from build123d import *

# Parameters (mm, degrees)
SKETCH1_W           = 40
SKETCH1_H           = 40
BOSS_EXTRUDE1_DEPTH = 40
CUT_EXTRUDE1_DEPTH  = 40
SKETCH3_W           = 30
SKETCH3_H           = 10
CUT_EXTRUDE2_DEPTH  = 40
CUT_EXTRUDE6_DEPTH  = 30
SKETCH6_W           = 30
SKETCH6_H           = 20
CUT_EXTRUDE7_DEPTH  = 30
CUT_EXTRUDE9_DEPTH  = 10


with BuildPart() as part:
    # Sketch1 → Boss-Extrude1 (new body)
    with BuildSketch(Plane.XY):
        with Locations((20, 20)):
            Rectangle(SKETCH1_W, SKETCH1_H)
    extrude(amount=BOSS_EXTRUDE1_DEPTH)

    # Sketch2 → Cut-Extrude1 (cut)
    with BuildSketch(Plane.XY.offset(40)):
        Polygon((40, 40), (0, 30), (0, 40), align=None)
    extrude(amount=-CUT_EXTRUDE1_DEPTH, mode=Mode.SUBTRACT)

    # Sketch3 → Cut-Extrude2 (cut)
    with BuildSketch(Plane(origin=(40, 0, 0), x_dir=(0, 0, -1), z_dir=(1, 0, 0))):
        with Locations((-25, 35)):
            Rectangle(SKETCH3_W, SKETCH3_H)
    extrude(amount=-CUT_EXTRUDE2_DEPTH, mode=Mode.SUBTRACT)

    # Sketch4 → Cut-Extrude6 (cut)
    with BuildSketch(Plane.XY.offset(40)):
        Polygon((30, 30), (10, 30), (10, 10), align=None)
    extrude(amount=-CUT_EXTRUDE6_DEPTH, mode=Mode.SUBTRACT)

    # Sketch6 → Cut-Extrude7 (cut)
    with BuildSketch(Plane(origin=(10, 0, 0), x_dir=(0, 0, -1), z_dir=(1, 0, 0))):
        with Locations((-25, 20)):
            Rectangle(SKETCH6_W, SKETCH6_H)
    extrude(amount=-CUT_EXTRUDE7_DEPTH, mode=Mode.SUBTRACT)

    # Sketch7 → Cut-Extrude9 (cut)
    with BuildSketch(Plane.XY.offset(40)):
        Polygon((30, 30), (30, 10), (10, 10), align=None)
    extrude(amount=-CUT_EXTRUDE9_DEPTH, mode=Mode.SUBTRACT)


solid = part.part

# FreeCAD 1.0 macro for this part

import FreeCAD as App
import Part
import Sketcher
from FreeCAD import Vector


def add_polygon(sketch, points):
    """Adds a closed chain of lines whose ends are joined by coincident constraints."""
    first, n = sketch.GeometryCount, len(points)
    for a, b in zip(points, points[1:] + points[:1]):
        sketch.addGeometry(Part.LineSegment(App.Vector(*a, 0), App.Vector(*b, 0)), False)
    for i in range(n):
        sketch.addConstraint(Sketcher.Constraint("Coincident", first + i, 2, first + (i + 1) % n, 1))

doc = App.newDocument("Part")
body = doc.addObject("PartDesign::Body", "Body")

# Sketch on XY plane
sketch1 = body.newObject("Sketcher::SketchObject", "Sketch")
sketch1.AttachmentSupport = (doc.getObject("XY_Plane"), [""])
sketch1.MapMode = "FlatFace"
add_polygon(sketch1, [(0, 40), (0, 0), (40, 0), (40, 40)])  # lines 0-3
sketch1.addConstraint([
    Sketcher.Constraint("Vertical", 0),
    Sketcher.Constraint("Horizontal", 1),
    Sketcher.Constraint("Vertical", 2),
    Sketcher.Constraint("Horizontal", 3),
    Sketcher.Constraint("Coincident", 0, 2, -1, 1),
    Sketcher.Constraint("Equal", 3, 0),
    Sketcher.Constraint("DistanceX", 1, 1, 1, 2, 40.0),
])
pad1 = body.newObject("PartDesign::Pad", "Pad")
pad1.Profile = sketch1
pad1.Length = 40

# Sketch on XY plane
sketch2 = body.newObject("Sketcher::SketchObject", "Sketch001")
sketch2.AttachmentSupport = (doc.getObject("XY_Plane"), [""])
sketch2.MapMode = "FlatFace"
sketch2.AttachmentOffset = App.Placement(Vector(0, 0, 40), App.Rotation())
add_polygon(sketch2, [(0, 30), (40, 40), (0, 40)])  # lines 0-2
sketch2.addConstraint([
    Sketcher.Constraint("Horizontal", 1),
    Sketcher.Constraint("Vertical", 2),
    Sketcher.Constraint("PointOnObject", 1, 2, -2),
    Sketcher.Constraint("DistanceX", 1, 2, 1, 1, 40.0),
    Sketcher.Constraint("DistanceY", 2, 2, 2, 1, 10.0),
    Sketcher.Constraint("DistanceY", -1, 1, 0, 2, 40.0),
])
pocket1 = body.newObject("PartDesign::Pocket", "Pocket")
pocket1.Profile = sketch2
pocket1.Length = 40

# Sketch on YZ plane
sketch3 = body.newObject("Sketcher::SketchObject", "Sketch002")
sketch3.AttachmentSupport = (doc.getObject("YZ_Plane"), [""])
sketch3.MapMode = "FlatFace"
sketch3.AttachmentOffset = App.Placement(Vector(0, 0, 40), App.Rotation())
add_polygon(sketch3, [(40, 40), (30, 40), (30, 10), (40, 10)])  # lines 0-3
sketch3.addConstraint([
    Sketcher.Constraint("Horizontal", 0),
    Sketcher.Constraint("Vertical", 1),
    Sketcher.Constraint("Horizontal", 2),
    Sketcher.Constraint("Vertical", 3),
    Sketcher.Constraint("DistanceX", 0, 2, 0, 1, 10.0),
    Sketcher.Constraint("DistanceY", 1, 2, 1, 1, 30.0),
    Sketcher.Constraint("DistanceX", -1, 1, 0, 2, 30.0),
    Sketcher.Constraint("DistanceY", -1, 1, 0, 2, 40.0),
])
pocket2 = body.newObject("PartDesign::Pocket", "Pocket001")
pocket2.Profile = sketch3
pocket2.Length = 40

# Sketch on XY plane
sketch4 = body.newObject("Sketcher::SketchObject", "Sketch003")
sketch4.AttachmentSupport = (doc.getObject("XY_Plane"), [""])
sketch4.MapMode = "FlatFace"
sketch4.AttachmentOffset = App.Placement(Vector(0, 0, 40), App.Rotation())
add_polygon(sketch4, [(30, 30), (10, 30), (10, 10)])  # lines 0-2
sketch4.addConstraint([
    Sketcher.Constraint("Horizontal", 0),
    Sketcher.Constraint("Vertical", 1),
    Sketcher.Constraint("Equal", 0, 1),
    Sketcher.Constraint("DistanceX", 0, 2, 0, 1, 20.0),
    Sketcher.Constraint("DistanceX", -1, 1, 0, 2, 10.0),
    Sketcher.Constraint("DistanceY", -1, 1, 0, 2, 30.0),
])
pocket3 = body.newObject("PartDesign::Pocket", "Pocket002")
pocket3.Profile = sketch4
pocket3.Length = 30

# Sketch on YZ plane
sketch5 = body.newObject("Sketcher::SketchObject", "Sketch004")
sketch5.AttachmentSupport = (doc.getObject("YZ_Plane"), [""])
sketch5.MapMode = "FlatFace"
sketch5.AttachmentOffset = App.Placement(Vector(0, 0, 10), App.Rotation())
add_polygon(sketch5, [(30, 40), (10, 40), (10, 10), (30, 10)])  # lines 0-3
sketch5.addConstraint([
    Sketcher.Constraint("Horizontal", 0),
    Sketcher.Constraint("Vertical", 1),
    Sketcher.Constraint("Horizontal", 2),
    Sketcher.Constraint("Vertical", 3),
    Sketcher.Constraint("DistanceX", 0, 2, 0, 1, 20.0),
    Sketcher.Constraint("DistanceY", 1, 2, 1, 1, 30.0),
    Sketcher.Constraint("DistanceX", -1, 1, 0, 2, 10.0),
    Sketcher.Constraint("DistanceY", -1, 1, 0, 2, 40.0),
])
pocket4 = body.newObject("PartDesign::Pocket", "Pocket003")
pocket4.Profile = sketch5
pocket4.Length = 30

# Sketch on XY plane
sketch6 = body.newObject("Sketcher::SketchObject", "Sketch005")
sketch6.AttachmentSupport = (doc.getObject("XY_Plane"), [""])
sketch6.MapMode = "FlatFace"
sketch6.AttachmentOffset = App.Placement(Vector(0, 0, 40), App.Rotation())
add_polygon(sketch6, [(30, 10), (30, 30), (10, 10)])  # lines 0-2
sketch6.addConstraint([
    Sketcher.Constraint("Vertical", 0),
    Sketcher.Constraint("Horizontal", 2),
    Sketcher.Constraint("Equal", 2, 0),
    Sketcher.Constraint("DistanceX", 2, 1, 2, 2, 20.0),
    Sketcher.Constraint("DistanceX", -1, 1, 0, 2, 30.0),
    Sketcher.Constraint("DistanceY", -1, 1, 0, 2, 30.0),
])
pocket5 = body.newObject("PartDesign::Pocket", "Pocket004")
pocket5.Profile = sketch6
pocket5.Length = 10

doc.recompute()
